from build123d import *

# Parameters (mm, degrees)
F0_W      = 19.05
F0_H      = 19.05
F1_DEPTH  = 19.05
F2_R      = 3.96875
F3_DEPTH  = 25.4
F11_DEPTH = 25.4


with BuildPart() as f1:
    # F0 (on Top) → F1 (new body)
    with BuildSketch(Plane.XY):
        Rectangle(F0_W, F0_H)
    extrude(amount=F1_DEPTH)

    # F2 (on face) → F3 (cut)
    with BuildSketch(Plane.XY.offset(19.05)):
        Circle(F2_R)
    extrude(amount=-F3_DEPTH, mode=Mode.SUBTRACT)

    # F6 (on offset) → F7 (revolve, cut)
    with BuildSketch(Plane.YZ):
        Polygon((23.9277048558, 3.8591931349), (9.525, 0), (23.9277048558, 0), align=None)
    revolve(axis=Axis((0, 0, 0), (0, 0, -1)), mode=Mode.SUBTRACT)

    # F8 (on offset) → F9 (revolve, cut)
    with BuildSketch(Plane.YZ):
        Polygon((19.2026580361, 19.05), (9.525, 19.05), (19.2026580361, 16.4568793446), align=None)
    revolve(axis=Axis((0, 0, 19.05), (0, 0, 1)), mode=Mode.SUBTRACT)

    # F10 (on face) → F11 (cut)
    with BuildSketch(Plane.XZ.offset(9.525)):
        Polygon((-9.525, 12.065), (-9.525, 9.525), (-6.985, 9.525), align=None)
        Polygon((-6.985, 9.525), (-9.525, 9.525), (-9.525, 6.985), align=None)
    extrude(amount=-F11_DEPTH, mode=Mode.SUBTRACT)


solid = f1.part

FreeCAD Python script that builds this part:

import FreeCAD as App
import Part
import Sketcher
Q = App.Units.Quantity


def add_polygon(sketch, points):
    """Adds a closed chain of lines whose ends are joined by coincident constraints."""
    first, n = sketch.GeometryCount, len(points)
    for a, b in zip(points, points[1:] + points[:1]):
        sketch.addGeometry(Part.LineSegment(App.Vector(*a, 0), App.Vector(*b, 0)), False)
    for i in range(n):
        sketch.addConstraint(Sketcher.Constraint("Coincident", first + i, 2, first + (i + 1) % n, 1))

doc = App.newDocument("Part")
params = doc.addObject("Spreadsheet::Sheet", "Params")
for row, (alias, value) in enumerate([
    ("sketch1_width", "0.75 in"),
    ("pad1_length", "0.75 in"),
    ("sketch2_diameter", "0.3125 in"),
    ("pocket1_length", "1 in"),
    ("groove_angle", "360 deg"),
    ("groove2_angle", "360 deg"),
    ("sketch5_height", "0.2 in"),
    ("pocket2_length", "1 in"),
], start=1):
    params.set(f"A{row}", alias)
    params.set(f"B{row}", "=" + value)
    params.setAlias(f"B{row}", alias)

body = doc.addObject("PartDesign::Body", "Body")

# Sketch on XY plane
sketch1 = body.newObject("Sketcher::SketchObject", "Sketch")
sketch1.AttachmentSupport = (doc.getObject("XY_Plane"), [""])
sketch1.MapMode = "FlatFace"
add_polygon(sketch1, [(-10, 10), (-10, -10), (10, -10), (10, 10)])  # lines 0-3
sketch1.addConstraint([
    Sketcher.Constraint("Vertical", 0),
    Sketcher.Constraint("Horizontal", 1),
    Sketcher.Constraint("Vertical", 2),
    Sketcher.Constraint("Horizontal", 3),
    Sketcher.Constraint("Symmetric", 0, 2, 2, 2, -1, 1),
    Sketcher.Constraint("Equal", 3, 0),
    Sketcher.Constraint("DistanceX", 1, 1, 1, 2, Q("0.75 in")),
])
sketch1.setExpression("Constraints[10]", "Params.sketch1_width")
pad1 = body.newObject("PartDesign::Pad", "Pad")
pad1.Profile = sketch1
pad1.setExpression("Length", "Params.pad1_length")

# Sketch on XY plane
sketch2 = body.newObject("Sketcher::SketchObject", "Sketch001")
sketch2.AttachmentSupport = (doc.getObject("XY_Plane"), [""])
sketch2.MapMode = "FlatFace"
sketch2.AttachmentOffset = App.Placement(App.Vector(0, 0, 0.75 * 25.4), App.Rotation())
sketch2.addGeometry(Part.Circle(App.Vector(0, 0, 0), App.Vector(0, 0, 1), 4), False)
sketch2.addConstraint([
    Sketcher.Constraint("Coincident", 0, 3, -1, 1),
    Sketcher.Constraint("Diameter", 0, Q("0.3125 in")),
])
sketch2.setExpression("Constraints[1]", "Params.sketch2_diameter")
pocket1 = body.newObject("PartDesign::Pocket", "Pocket")
pocket1.Profile = sketch2
pocket1.setExpression("Length", "Params.pocket1_length")

# Sketch on YZ plane
sketch3 = body.newObject("Sketcher::SketchObject", "Sketch002")
sketch3.AttachmentSupport = (doc.getObject("YZ_Plane"), [""])
sketch3.MapMode = "FlatFace"
add_polygon(sketch3, [(23.9, 3.9), (9.5, 0), (23.9, 0)])  # lines 0-2
sketch3.addConstraint([
    Sketcher.Constraint("Horizontal", 1),
    Sketcher.Constraint("Vertical", 2),
    Sketcher.Constraint("PointOnObject", 0, 2, -1),
    Sketcher.Constraint("Angle", 0, Q("-165 deg")),
    Sketcher.Constraint("DistanceX", -1, 1, 0, 2, Q("0.375 in")),
    Sketcher.Constraint("DistanceX", 1, 1, 1, 2, Q("14.402705 mm")),
])
groove = body.newObject("PartDesign::Groove", "Groove")
groove.Profile = sketch3
groove.ReferenceAxis = (sketch3, ["V_Axis"])
groove.setExpression("Angle", "Params.groove_angle")

# Sketch on YZ plane
sketch4 = body.newObject("Sketcher::SketchObject", "Sketch003")
sketch4.AttachmentSupport = (doc.getObject("YZ_Plane"), [""])
sketch4.MapMode = "FlatFace"
add_polygon(sketch4, [(19.2, 19.1), (9.5, 19.1), (19.2, 16.5)])  # lines 0-2
sketch4.addConstraint([
    Sketcher.Constraint("Horizontal", 0),
    Sketcher.Constraint("Vertical", 2),
    Sketcher.Constraint("Angle", 1, Q("-15 deg")),
    Sketcher.Constraint("DistanceY", -1, 1, 0, 2, Q("0.75 in")),
    Sketcher.Constraint("DistanceX", -1, 1, 0, 2, Q("0.375 in")),
    Sketcher.Constraint("DistanceX", 0, 2, 0, 1, Q("9.677658 mm")),
])
groove2 = body.newObject("PartDesign::Groove", "Groove001")
groove2.Profile = sketch4
groove2.ReferenceAxis = (sketch4, ["V_Axis"])
groove2.setExpression("Angle", "Params.groove2_angle")

# Sketch on XZ plane
sketch5 = body.newObject("Sketcher::SketchObject", "Sketch004")
sketch5.AttachmentSupport = (doc.getObject("XZ_Plane"), [""])
sketch5.MapMode = "FlatFace"
sketch5.AttachmentOffset = App.Placement(App.Vector(0, 0, 0.375 * 25.4), App.Rotation())
add_polygon(sketch5, [(-9.5, 12.1), (-9.5, 7), (-7, 9.5)])  # lines 0-2
sketch5.addConstraint([
    Sketcher.Constraint("Vertical", 0),
    Sketcher.Constraint("Perpendicular", 1, 2),
    Sketcher.Constraint("Equal", 1, 2),
    Sketcher.Constraint("DistanceY", 0, 2, 0, 1, Q("0.2 in")),
    Sketcher.Constraint("DistanceX", 0, 2, -1, 1, Q("0.375 in")),
    Sketcher.Constraint("DistanceY", -1, 1, 0, 2, Q("0.275 in")),
])
sketch5.setExpression("Constraints[6]", "Params.sketch5_height")
pocket2 = body.newObject("PartDesign::Pocket", "Pocket001")
pocket2.Profile = sketch5
pocket2.setExpression("Length", "Params.pocket2_length")

doc.recompute()
